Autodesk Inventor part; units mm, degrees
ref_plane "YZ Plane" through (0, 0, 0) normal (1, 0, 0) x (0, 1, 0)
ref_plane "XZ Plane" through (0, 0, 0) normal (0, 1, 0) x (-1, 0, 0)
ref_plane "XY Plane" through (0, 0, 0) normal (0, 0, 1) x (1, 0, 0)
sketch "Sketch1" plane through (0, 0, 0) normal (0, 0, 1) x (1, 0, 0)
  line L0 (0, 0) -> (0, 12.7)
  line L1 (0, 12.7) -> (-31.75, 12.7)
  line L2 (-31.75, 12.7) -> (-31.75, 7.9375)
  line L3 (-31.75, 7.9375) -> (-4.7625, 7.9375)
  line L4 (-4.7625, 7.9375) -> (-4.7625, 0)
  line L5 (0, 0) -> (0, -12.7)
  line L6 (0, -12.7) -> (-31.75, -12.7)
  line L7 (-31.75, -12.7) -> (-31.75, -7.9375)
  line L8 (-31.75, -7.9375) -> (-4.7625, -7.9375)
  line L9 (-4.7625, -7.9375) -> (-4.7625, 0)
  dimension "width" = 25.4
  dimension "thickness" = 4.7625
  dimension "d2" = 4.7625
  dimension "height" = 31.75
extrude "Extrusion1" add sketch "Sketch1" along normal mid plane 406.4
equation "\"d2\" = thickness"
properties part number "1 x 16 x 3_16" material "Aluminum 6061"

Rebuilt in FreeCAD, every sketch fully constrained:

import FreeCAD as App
import Part
import Sketcher

V = App.Vector
Q = App.Units.Quantity

doc = App.newDocument("Part")
body = doc.addObject("PartDesign::Body", "Body")

sketch1 = body.newObject("Sketcher::SketchObject", "Sketch")
sketch1.AttachmentSupport = (doc.getObject("XY_Plane"), [""])
sketch1.MapMode = "FlatFace"
sketch1.addGeometry(Part.LineSegment(V(0, -12.7, 0), V(0, 12.7, 0)), False)
sketch1.addGeometry(Part.LineSegment(V(0, 12.7, 0), V(-31.8, 12.7, 0)), False)
sketch1.addGeometry(Part.LineSegment(V(-31.8, 12.7, 0), V(-31.8, 7.9, 0)), False)
sketch1.addGeometry(Part.LineSegment(V(-31.8, 7.9, 0), V(-4.8, 7.9, 0)), False)
sketch1.addGeometry(Part.LineSegment(V(-4.8, 7.9, 0), V(-4.8, -7.9, 0)), False)
sketch1.addGeometry(Part.LineSegment(V(-4.8, -7.9, 0), V(-31.8, -7.9, 0)), False)
sketch1.addGeometry(Part.LineSegment(V(-31.8, -7.9, 0), V(-31.8, -12.7, 0)), False)
sketch1.addGeometry(Part.LineSegment(V(-31.8, -12.7, 0), V(0, -12.7, 0)), False)
sketch1.addConstraint(Sketcher.Constraint("Coincident", 0, 2, 1, 1))
sketch1.addConstraint(Sketcher.Constraint("Coincident", 1, 2, 2, 1))
sketch1.addConstraint(Sketcher.Constraint("Coincident", 2, 2, 3, 1))
sketch1.addConstraint(Sketcher.Constraint("Coincident", 3, 2, 4, 1))
sketch1.addConstraint(Sketcher.Constraint("Coincident", 4, 2, 5, 1))
sketch1.addConstraint(Sketcher.Constraint("Coincident", 5, 2, 6, 1))
sketch1.addConstraint(Sketcher.Constraint("Coincident", 6, 2, 7, 1))
sketch1.addConstraint(Sketcher.Constraint("Coincident", 7, 2, 0, 1))
sketch1.addConstraint(Sketcher.Constraint("Vertical", 0))
sketch1.addConstraint(Sketcher.Constraint("Horizontal", 1))
sketch1.addConstraint(Sketcher.Constraint("Vertical", 2))
sketch1.addConstraint(Sketcher.Constraint("Horizontal", 3))
sketch1.addConstraint(Sketcher.Constraint("Vertical", 4))
sketch1.addConstraint(Sketcher.Constraint("Horizontal", 5))
sketch1.addConstraint(Sketcher.Constraint("Vertical", 6))
sketch1.addConstraint(Sketcher.Constraint("Horizontal", 7))
sketch1.addConstraint(Sketcher.Constraint("Symmetric", 0, 2, 7, 2, -1, 1))
sketch1.addConstraint(Sketcher.Constraint("Symmetric", 2, 2, 5, 2, -1))
sketch1.addConstraint(Sketcher.Constraint("DistanceY", 0, 1, 0, 2, Q("1 in")))
sketch1.addConstraint(Sketcher.Constraint("DistanceX", 1, 2, 1, 1, Q("1.25 in")))
sketch1.addConstraint(Sketcher.Constraint("DistanceY", 2, 2, 2, 1, Q("0.1875 in")))
sketch1.addConstraint(Sketcher.Constraint("DistanceX", 3, 2, -1, 1, Q("0.1875 in")))
pad1 = body.newObject("PartDesign::Pad", "Pad")
pad1.Profile = sketch1
pad1.Length = Q("16 in")
pad1.Midplane = True

doc.recompute()
